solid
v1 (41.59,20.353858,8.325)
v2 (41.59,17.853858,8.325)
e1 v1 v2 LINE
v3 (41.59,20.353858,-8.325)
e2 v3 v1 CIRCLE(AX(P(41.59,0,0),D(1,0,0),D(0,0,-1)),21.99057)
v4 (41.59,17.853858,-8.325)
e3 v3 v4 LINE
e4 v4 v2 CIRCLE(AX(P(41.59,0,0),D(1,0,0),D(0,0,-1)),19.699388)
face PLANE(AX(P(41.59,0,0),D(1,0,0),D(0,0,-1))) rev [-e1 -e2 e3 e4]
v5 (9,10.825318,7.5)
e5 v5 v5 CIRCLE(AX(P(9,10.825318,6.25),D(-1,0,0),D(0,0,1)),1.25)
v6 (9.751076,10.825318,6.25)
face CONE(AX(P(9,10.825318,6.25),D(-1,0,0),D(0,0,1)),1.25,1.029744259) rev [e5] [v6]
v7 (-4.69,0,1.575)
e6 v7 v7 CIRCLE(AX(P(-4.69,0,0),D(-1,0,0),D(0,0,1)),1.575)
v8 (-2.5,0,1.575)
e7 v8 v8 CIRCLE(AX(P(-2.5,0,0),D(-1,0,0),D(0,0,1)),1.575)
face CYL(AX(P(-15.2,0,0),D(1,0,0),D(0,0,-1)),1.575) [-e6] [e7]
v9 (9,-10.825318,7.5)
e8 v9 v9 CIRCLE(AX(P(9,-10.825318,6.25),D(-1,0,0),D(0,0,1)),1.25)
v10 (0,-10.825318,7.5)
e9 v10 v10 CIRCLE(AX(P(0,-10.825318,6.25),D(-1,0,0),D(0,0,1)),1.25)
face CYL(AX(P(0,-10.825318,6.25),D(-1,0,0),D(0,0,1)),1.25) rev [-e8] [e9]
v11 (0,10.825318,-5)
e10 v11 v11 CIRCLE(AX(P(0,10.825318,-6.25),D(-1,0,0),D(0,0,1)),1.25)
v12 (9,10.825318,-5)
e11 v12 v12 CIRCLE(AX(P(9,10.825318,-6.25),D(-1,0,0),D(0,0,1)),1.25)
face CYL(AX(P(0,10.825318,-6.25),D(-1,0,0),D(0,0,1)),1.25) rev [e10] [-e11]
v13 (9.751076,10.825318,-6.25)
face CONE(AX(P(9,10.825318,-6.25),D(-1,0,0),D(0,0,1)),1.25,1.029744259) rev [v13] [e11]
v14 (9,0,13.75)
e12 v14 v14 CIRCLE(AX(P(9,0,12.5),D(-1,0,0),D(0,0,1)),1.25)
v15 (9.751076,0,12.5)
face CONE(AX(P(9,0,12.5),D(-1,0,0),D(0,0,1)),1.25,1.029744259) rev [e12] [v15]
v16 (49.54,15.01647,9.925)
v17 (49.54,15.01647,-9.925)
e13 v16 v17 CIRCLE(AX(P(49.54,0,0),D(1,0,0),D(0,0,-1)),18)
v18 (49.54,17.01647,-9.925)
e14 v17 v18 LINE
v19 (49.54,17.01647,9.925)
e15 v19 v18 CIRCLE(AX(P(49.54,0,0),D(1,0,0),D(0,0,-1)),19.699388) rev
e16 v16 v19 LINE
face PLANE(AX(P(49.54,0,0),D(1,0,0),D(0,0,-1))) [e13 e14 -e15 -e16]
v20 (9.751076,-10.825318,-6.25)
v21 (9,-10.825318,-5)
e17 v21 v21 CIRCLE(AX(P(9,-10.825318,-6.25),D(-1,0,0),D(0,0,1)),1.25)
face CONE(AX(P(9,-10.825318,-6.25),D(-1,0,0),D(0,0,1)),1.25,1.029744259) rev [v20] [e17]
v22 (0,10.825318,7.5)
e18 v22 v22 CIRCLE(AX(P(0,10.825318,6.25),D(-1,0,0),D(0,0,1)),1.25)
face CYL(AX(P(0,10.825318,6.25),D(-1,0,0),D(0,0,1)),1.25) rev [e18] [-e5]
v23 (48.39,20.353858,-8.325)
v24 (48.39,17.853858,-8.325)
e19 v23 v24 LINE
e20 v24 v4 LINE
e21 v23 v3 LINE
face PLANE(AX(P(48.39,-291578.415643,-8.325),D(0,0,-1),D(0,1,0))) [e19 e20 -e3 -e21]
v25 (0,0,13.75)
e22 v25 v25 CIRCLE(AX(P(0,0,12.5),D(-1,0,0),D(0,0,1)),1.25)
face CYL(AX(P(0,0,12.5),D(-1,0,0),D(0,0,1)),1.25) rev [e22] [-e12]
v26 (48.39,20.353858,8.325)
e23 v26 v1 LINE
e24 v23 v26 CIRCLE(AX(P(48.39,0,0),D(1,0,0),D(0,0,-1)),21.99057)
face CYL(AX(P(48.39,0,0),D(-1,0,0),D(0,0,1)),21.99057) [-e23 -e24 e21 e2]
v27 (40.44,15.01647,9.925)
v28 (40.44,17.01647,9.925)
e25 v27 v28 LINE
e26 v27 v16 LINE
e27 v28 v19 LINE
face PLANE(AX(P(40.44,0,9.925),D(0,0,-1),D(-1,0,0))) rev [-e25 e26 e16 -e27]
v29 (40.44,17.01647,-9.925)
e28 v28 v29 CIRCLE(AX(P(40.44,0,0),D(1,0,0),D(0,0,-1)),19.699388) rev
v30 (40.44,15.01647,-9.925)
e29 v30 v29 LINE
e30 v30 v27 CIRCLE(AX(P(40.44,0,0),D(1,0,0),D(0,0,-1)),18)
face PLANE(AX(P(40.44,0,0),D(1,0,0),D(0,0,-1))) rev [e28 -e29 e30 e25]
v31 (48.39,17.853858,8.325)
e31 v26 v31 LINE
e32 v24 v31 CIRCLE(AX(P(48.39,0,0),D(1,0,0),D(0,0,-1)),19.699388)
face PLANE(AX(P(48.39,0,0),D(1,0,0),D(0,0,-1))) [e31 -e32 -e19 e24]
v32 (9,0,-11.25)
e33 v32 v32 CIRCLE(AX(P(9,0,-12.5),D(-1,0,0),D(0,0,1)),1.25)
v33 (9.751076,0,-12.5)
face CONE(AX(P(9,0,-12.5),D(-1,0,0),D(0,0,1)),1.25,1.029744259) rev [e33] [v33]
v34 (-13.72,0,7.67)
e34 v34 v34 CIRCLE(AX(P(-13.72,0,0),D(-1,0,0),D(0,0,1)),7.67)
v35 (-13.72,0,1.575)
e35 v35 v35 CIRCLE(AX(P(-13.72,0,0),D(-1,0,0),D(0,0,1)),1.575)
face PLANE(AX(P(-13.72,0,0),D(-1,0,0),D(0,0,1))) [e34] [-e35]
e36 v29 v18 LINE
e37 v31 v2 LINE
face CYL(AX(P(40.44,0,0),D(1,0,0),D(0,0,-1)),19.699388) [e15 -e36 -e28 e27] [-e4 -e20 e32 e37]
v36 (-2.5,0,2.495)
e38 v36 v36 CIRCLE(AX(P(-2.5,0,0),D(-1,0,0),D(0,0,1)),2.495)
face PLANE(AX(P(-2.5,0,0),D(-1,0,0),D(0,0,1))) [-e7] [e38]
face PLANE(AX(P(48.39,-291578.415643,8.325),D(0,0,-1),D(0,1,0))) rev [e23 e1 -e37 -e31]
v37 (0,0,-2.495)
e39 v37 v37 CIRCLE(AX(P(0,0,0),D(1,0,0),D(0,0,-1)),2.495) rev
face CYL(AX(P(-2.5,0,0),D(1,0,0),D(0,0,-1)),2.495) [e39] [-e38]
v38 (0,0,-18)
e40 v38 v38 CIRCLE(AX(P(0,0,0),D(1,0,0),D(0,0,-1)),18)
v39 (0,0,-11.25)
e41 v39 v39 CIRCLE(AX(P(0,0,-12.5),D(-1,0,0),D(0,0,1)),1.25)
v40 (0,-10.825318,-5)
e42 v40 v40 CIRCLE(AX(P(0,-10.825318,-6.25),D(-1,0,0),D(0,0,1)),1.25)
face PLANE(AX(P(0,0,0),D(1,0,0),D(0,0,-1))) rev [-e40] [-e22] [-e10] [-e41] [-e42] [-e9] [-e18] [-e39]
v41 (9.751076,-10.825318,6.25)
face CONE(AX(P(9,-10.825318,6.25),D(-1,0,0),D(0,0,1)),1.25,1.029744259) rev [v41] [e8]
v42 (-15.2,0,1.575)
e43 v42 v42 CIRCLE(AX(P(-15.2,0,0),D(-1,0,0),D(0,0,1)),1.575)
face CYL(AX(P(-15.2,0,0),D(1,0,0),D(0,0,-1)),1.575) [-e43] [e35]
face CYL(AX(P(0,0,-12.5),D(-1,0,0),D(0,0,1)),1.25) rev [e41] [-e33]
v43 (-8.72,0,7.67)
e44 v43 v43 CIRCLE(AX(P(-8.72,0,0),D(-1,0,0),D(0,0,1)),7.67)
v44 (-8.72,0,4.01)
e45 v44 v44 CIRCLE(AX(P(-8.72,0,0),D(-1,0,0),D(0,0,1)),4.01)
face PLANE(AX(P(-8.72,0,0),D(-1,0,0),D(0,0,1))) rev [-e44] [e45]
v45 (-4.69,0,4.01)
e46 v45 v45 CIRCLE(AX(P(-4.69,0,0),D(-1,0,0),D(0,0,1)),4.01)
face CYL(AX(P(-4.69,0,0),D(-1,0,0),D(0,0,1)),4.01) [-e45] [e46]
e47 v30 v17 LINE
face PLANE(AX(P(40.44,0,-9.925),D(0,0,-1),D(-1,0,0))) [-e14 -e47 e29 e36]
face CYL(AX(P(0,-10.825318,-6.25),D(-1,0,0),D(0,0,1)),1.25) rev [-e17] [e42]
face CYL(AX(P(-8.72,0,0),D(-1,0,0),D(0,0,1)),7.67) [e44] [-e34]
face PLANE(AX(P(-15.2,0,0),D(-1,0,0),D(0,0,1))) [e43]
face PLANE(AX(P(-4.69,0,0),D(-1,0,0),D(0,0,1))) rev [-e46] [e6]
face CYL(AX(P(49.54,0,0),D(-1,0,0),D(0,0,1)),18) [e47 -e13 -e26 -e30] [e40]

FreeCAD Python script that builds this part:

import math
import FreeCAD as App
import Part
import Sketcher
Q = App.Units.Quantity

doc = App.newDocument("Part")
body = doc.addObject("PartDesign::Body", "Body")

sketch1 = doc.addObject("Sketcher::SketchObject", "Sketch")
body.addObject(sketch1)
sketch1.AttachmentSupport = (doc.YZ_Plane, [""])
sketch1.MapMode = "FlatFace"
sketch1.addGeometry(Part.Circle(App.Vector(0, 0, 0), App.Vector(0, 0, 1), 18), False)
sketch1.addConstraint([
    Sketcher.Constraint("Coincident", 0, 3, -1, 1),
    Sketcher.Constraint("Diameter", 0, Q("36 mm")),
])
pad1 = doc.addObject("PartDesign::Pad", "Pad")
body.addObject(pad1)
pad1.Profile = sketch1
pad1.Length = 49.54

sketch2 = doc.addObject("Sketcher::SketchObject", "Sketch001")
body.addObject(sketch2)
sketch2.AttachmentSupport = (doc.YZ_Plane, [""])
sketch2.MapMode = "FlatFace"
sketch2.addGeometry(Part.Circle(App.Vector(0, 0, 0), App.Vector(0, 0, 1), 2.495), False)
sketch2.addConstraint([
    Sketcher.Constraint("Coincident", 0, 3, -1, 1),
    Sketcher.Constraint("Diameter", 0, Q("4.99 mm")),
])
pad2 = doc.addObject("PartDesign::Pad", "Pad001")
body.addObject(pad2)
pad2.Profile = sketch2
pad2.Length = 2.5
pad2.Reversed = True

sketch3 = doc.addObject("Sketcher::SketchObject", "Sketch002")
body.addObject(sketch3)
sketch3.AttachmentSupport = (doc.YZ_Plane, [""])
sketch3.MapMode = "FlatFace"
sketch3.AttachmentOffset = App.Placement(App.Vector(0, 0, -2.5), App.Rotation())
sketch3.addGeometry(Part.Circle(App.Vector(0, 0, 0), App.Vector(0, 0, 1), 1.575), False)
sketch3.addConstraint([
    Sketcher.Constraint("Coincident", 0, 3, -1, 1),
    Sketcher.Constraint("Diameter", 0, Q("3.15 mm")),
])
pad3 = doc.addObject("PartDesign::Pad", "Pad002")
body.addObject(pad3)
pad3.Profile = sketch3
pad3.Length = 12.7
pad3.Reversed = True

sketch4 = doc.addObject("Sketcher::SketchObject", "Sketch003")
body.addObject(sketch4)
sketch4.AttachmentSupport = (doc.YZ_Plane, [""])
sketch4.MapMode = "FlatFace"
sketch4.AttachmentOffset = App.Placement(App.Vector(0, 0, -13.72), App.Rotation())
sketch4.addGeometry(Part.Circle(App.Vector(0, 0, 0), App.Vector(0, 0, 1), 7.67), False)
sketch4.addConstraint([
    Sketcher.Constraint("Coincident", 0, 3, -1, 1),
    Sketcher.Constraint("Diameter", 0, Q("15.34 mm")),
])
pad4 = doc.addObject("PartDesign::Pad", "Pad003")
body.addObject(pad4)
pad4.Profile = sketch4
pad4.Length = 5

sketch5 = doc.addObject("Sketcher::SketchObject", "Sketch004")
body.addObject(sketch5)
sketch5.AttachmentSupport = (doc.YZ_Plane, [""])
sketch5.MapMode = "FlatFace"
sketch5.AttachmentOffset = App.Placement(App.Vector(0, 0, -13.72), App.Rotation())
sketch5.addGeometry(Part.Circle(App.Vector(0, 0, 0), App.Vector(0, 0, 1), 4.01), False)
sketch5.addConstraint([
    Sketcher.Constraint("Coincident", 0, 3, -1, 1),
    Sketcher.Constraint("Diameter", 0, Q("8.02 mm")),
])
pad5 = doc.addObject("PartDesign::Pad", "Pad004")
body.addObject(pad5)
pad5.Profile = sketch5
pad5.Length = 9.03

sketch6 = doc.addObject("Sketcher::SketchObject", "Sketch005")
body.addObject(sketch6)
sketch6.AttachmentSupport = (doc.YZ_Plane, [""])
sketch6.MapMode = "FlatFace"
sketch6.addGeometry([
    Part.Circle(App.Vector(0, 12.5, 0), App.Vector(0, 0, 1), 1.25),
    Part.Circle(App.Vector(-10.825318, 6.25, 0), App.Vector(0, 0, 1), 1.25),
    Part.Circle(App.Vector(-10.825318, -6.25, 0), App.Vector(0, 0, 1), 1.25),
    Part.Circle(App.Vector(0, -12.5, 0), App.Vector(0, 0, 1), 1.25),
    Part.Circle(App.Vector(10.825318, -6.25, 0), App.Vector(0, 0, 1), 1.25),
    Part.Circle(App.Vector(10.825318, 6.25, 0), App.Vector(0, 0, 1), 1.25),
], False)
sketch6.addConstraint([
    Sketcher.Constraint("Equal", 0, 1),
    Sketcher.Constraint("Equal", 1, 2),
    Sketcher.Constraint("Equal", 2, 3),
    Sketcher.Constraint("Equal", 3, 4),
    Sketcher.Constraint("Equal", 4, 5),
    Sketcher.Constraint("Symmetric", 0, 3, 3, 3, -1, 1),
    Sketcher.Constraint("Symmetric", 1, 3, 4, 3, -1, 1),
    Sketcher.Constraint("Symmetric", 2, 3, 5, 3, -1, 1),
    Sketcher.Constraint("Symmetric", 2, 3, 4, 3, -2),
    Sketcher.Constraint("PointOnObject", 0, 3, -2),
    Sketcher.Constraint("Diameter", 0, Q("2.5 mm")),
    Sketcher.Constraint("DistanceY", 3, 3, 0, 3, Q("25 mm")),
    Sketcher.Constraint("DistanceY", 2, 3, 1, 3, Q("12.5 mm")),
    Sketcher.Constraint("DistanceX", 1, 3, -1, 1, Q("10.825318 mm")),
])
doc.recompute()
hole = doc.addObject("PartDesign::Hole", "Hole")
body.addObject(hole)
hole.Profile = sketch6
hole.ThreadType = "None"
hole.Diameter = 2.5
hole.DepthType = "Dimension"
hole.Depth = 9
hole.DrillPoint = "Angled"
hole.DrillPointAngle = 118
hole.Reversed = True

sketch7 = doc.addObject("Sketcher::SketchObject", "Sketch006")
body.addObject(sketch7)
sketch7.AttachmentSupport = (doc.YZ_Plane, [""])
sketch7.MapMode = "FlatFace"
sketch7.AttachmentOffset = App.Placement(App.Vector(0, 0, 40.44), App.Rotation())
sketch7.addGeometry([
    Part.ArcOfCircle(Part.Circle(App.Vector(0, 0, 0), App.Vector(0, 0, 1), 18), math.radians(0), math.radians(33.462349)),
    Part.ArcOfCircle(Part.Circle(App.Vector(0, 0, 0), App.Vector(0, 0, 1), 18), math.radians(-33.462349), math.radians(0)),
    Part.LineSegment(App.Vector(15.01647, -9.925, 0), App.Vector(17.01647, -9.925, 0)),
    Part.ArcOfCircle(Part.Circle(App.Vector(0, 0, 0), App.Vector(0, 0, 1), 19.699388), math.radians(-30.253236), math.radians(-24.99897)),
    Part.ArcOfCircle(Part.Circle(App.Vector(0, 0, 0), App.Vector(0, 0, 1), 19.699388), math.radians(-24.99897), math.radians(0)),
    Part.ArcOfCircle(Part.Circle(App.Vector(0, 0, 0), App.Vector(0, 0, 1), 19.699388), math.radians(0), math.radians(24.99897)),
    Part.ArcOfCircle(Part.Circle(App.Vector(0, 0, 0), App.Vector(0, 0, 1), 19.699388), math.radians(24.99897), math.radians(30.253236)),
    Part.LineSegment(App.Vector(17.01647, 9.925, 0), App.Vector(15.01647, 9.925, 0)),
], False)
sketch7.addConstraint([
    Sketcher.Constraint("Tangent", 0, 1, 1, 2),
    Sketcher.Constraint("Coincident", 1, 1, 2, 1),
    Sketcher.Constraint("Coincident", 2, 2, 3, 1),
    Sketcher.Constraint("Tangent", 3, 2, 4, 1),
    Sketcher.Constraint("Tangent", 4, 2, 5, 1),
    Sketcher.Constraint("Tangent", 5, 2, 6, 1),
    Sketcher.Constraint("Coincident", 6, 2, 7, 1),
    Sketcher.Constraint("Coincident", 7, 2, 0, 2),
    Sketcher.Constraint("Horizontal", 2),
    Sketcher.Constraint("Horizontal", 7),
    Sketcher.Constraint("Coincident", 0, 3, -1, 1),
    Sketcher.Constraint("Coincident", 3, 3, -1, 1),
    Sketcher.Constraint("Coincident", 5, 3, -1, 1),
    Sketcher.Constraint("Equal", 0, 1),
    Sketcher.Constraint("Equal", 5, 6),
    Sketcher.Constraint("PointOnObject", 0, 1, -1),
    Sketcher.Constraint("PointOnObject", 4, 2, -1),
    Sketcher.Constraint("Vertical", 3, 2, 5, 2),
    Sketcher.Constraint("Vertical", 2, 2, 6, 2),
    Sketcher.Constraint("Radius", 0, Q("18 mm")),
    Sketcher.Constraint("DistanceX", 2, 1, 2, 2, Q("2 mm")),
    Sketcher.Constraint("DistanceY", 2, 2, 3, 2, Q("1.6 mm")),
    Sketcher.Constraint("DistanceY", 3, 2, 5, 2, Q("16.65 mm")),
])
pad6 = doc.addObject("PartDesign::Pad", "Pad005")
body.addObject(pad6)
pad6.Profile = sketch7
pad6.Length = 9.1

sketch8 = doc.addObject("Sketcher::SketchObject", "Sketch007")
body.addObject(sketch8)
sketch8.AttachmentSupport = (doc.YZ_Plane, [""])
sketch8.MapMode = "FlatFace"
sketch8.AttachmentOffset = App.Placement(App.Vector(0, 0, 44.99), App.Rotation())
sketch8.addGeometry([
    Part.ArcOfCircle(Part.Circle(App.Vector(0, 0, 0), App.Vector(0, 0, 1), 19.699388), math.radians(0), math.radians(24.99897)),
    Part.ArcOfCircle(Part.Circle(App.Vector(0, 0, 0), App.Vector(0, 0, 1), 19.699388), math.radians(-24.99897), math.radians(0)),
    Part.LineSegment(App.Vector(17.853858, -8.325, 0), App.Vector(20.353858, -8.325, 0)),
    Part.ArcOfCircle(Part.Circle(App.Vector(0, 0, 0), App.Vector(0, 0, 1), 21.99057), math.radians(-22.245217), math.radians(0)),
    Part.ArcOfCircle(Part.Circle(App.Vector(0, 0, 0), App.Vector(0, 0, 1), 21.99057), math.radians(0), math.radians(22.245217)),
    Part.LineSegment(App.Vector(20.353858, 8.325, 0), App.Vector(17.853858, 8.325, 0)),
], False)
sketch8.addConstraint([
    Sketcher.Constraint("Tangent", 0, 1, 1, 2),
    Sketcher.Constraint("Coincident", 1, 1, 2, 1),
    Sketcher.Constraint("Coincident", 2, 2, 3, 1),
    Sketcher.Constraint("Tangent", 3, 2, 4, 1),
    Sketcher.Constraint("Coincident", 4, 2, 5, 1),
    Sketcher.Constraint("Coincident", 5, 2, 0, 2),
    Sketcher.Constraint("Horizontal", 2),
    Sketcher.Constraint("Horizontal", 5),
    Sketcher.Constraint("Coincident", 0, 3, -1, 1),
    Sketcher.Constraint("Coincident", 3, 3, -1, 1),
    Sketcher.Constraint("Equal", 0, 1),
    Sketcher.Constraint("Equal", 3, 4),
    Sketcher.Constraint("PointOnObject", 0, 1, -1),
    Sketcher.Constraint("PointOnObject", 3, 2, -1),
    Sketcher.Constraint("Vertical", 2, 2, 4, 2),
    Sketcher.Constraint("DistanceX", 2, 1, 2, 2, Q("2.5 mm")),
    Sketcher.Constraint("Radius", 3, Q("21.99057 mm")),
    Sketcher.Constraint("DistanceY", 2, 2, 4, 2, Q("16.65 mm")),
])
pad7 = doc.addObject("PartDesign::Pad", "Pad006")
body.addObject(pad7)
pad7.Profile = sketch8
pad7.Length = 6.8
pad7.Midplane = True

doc.recompute()
